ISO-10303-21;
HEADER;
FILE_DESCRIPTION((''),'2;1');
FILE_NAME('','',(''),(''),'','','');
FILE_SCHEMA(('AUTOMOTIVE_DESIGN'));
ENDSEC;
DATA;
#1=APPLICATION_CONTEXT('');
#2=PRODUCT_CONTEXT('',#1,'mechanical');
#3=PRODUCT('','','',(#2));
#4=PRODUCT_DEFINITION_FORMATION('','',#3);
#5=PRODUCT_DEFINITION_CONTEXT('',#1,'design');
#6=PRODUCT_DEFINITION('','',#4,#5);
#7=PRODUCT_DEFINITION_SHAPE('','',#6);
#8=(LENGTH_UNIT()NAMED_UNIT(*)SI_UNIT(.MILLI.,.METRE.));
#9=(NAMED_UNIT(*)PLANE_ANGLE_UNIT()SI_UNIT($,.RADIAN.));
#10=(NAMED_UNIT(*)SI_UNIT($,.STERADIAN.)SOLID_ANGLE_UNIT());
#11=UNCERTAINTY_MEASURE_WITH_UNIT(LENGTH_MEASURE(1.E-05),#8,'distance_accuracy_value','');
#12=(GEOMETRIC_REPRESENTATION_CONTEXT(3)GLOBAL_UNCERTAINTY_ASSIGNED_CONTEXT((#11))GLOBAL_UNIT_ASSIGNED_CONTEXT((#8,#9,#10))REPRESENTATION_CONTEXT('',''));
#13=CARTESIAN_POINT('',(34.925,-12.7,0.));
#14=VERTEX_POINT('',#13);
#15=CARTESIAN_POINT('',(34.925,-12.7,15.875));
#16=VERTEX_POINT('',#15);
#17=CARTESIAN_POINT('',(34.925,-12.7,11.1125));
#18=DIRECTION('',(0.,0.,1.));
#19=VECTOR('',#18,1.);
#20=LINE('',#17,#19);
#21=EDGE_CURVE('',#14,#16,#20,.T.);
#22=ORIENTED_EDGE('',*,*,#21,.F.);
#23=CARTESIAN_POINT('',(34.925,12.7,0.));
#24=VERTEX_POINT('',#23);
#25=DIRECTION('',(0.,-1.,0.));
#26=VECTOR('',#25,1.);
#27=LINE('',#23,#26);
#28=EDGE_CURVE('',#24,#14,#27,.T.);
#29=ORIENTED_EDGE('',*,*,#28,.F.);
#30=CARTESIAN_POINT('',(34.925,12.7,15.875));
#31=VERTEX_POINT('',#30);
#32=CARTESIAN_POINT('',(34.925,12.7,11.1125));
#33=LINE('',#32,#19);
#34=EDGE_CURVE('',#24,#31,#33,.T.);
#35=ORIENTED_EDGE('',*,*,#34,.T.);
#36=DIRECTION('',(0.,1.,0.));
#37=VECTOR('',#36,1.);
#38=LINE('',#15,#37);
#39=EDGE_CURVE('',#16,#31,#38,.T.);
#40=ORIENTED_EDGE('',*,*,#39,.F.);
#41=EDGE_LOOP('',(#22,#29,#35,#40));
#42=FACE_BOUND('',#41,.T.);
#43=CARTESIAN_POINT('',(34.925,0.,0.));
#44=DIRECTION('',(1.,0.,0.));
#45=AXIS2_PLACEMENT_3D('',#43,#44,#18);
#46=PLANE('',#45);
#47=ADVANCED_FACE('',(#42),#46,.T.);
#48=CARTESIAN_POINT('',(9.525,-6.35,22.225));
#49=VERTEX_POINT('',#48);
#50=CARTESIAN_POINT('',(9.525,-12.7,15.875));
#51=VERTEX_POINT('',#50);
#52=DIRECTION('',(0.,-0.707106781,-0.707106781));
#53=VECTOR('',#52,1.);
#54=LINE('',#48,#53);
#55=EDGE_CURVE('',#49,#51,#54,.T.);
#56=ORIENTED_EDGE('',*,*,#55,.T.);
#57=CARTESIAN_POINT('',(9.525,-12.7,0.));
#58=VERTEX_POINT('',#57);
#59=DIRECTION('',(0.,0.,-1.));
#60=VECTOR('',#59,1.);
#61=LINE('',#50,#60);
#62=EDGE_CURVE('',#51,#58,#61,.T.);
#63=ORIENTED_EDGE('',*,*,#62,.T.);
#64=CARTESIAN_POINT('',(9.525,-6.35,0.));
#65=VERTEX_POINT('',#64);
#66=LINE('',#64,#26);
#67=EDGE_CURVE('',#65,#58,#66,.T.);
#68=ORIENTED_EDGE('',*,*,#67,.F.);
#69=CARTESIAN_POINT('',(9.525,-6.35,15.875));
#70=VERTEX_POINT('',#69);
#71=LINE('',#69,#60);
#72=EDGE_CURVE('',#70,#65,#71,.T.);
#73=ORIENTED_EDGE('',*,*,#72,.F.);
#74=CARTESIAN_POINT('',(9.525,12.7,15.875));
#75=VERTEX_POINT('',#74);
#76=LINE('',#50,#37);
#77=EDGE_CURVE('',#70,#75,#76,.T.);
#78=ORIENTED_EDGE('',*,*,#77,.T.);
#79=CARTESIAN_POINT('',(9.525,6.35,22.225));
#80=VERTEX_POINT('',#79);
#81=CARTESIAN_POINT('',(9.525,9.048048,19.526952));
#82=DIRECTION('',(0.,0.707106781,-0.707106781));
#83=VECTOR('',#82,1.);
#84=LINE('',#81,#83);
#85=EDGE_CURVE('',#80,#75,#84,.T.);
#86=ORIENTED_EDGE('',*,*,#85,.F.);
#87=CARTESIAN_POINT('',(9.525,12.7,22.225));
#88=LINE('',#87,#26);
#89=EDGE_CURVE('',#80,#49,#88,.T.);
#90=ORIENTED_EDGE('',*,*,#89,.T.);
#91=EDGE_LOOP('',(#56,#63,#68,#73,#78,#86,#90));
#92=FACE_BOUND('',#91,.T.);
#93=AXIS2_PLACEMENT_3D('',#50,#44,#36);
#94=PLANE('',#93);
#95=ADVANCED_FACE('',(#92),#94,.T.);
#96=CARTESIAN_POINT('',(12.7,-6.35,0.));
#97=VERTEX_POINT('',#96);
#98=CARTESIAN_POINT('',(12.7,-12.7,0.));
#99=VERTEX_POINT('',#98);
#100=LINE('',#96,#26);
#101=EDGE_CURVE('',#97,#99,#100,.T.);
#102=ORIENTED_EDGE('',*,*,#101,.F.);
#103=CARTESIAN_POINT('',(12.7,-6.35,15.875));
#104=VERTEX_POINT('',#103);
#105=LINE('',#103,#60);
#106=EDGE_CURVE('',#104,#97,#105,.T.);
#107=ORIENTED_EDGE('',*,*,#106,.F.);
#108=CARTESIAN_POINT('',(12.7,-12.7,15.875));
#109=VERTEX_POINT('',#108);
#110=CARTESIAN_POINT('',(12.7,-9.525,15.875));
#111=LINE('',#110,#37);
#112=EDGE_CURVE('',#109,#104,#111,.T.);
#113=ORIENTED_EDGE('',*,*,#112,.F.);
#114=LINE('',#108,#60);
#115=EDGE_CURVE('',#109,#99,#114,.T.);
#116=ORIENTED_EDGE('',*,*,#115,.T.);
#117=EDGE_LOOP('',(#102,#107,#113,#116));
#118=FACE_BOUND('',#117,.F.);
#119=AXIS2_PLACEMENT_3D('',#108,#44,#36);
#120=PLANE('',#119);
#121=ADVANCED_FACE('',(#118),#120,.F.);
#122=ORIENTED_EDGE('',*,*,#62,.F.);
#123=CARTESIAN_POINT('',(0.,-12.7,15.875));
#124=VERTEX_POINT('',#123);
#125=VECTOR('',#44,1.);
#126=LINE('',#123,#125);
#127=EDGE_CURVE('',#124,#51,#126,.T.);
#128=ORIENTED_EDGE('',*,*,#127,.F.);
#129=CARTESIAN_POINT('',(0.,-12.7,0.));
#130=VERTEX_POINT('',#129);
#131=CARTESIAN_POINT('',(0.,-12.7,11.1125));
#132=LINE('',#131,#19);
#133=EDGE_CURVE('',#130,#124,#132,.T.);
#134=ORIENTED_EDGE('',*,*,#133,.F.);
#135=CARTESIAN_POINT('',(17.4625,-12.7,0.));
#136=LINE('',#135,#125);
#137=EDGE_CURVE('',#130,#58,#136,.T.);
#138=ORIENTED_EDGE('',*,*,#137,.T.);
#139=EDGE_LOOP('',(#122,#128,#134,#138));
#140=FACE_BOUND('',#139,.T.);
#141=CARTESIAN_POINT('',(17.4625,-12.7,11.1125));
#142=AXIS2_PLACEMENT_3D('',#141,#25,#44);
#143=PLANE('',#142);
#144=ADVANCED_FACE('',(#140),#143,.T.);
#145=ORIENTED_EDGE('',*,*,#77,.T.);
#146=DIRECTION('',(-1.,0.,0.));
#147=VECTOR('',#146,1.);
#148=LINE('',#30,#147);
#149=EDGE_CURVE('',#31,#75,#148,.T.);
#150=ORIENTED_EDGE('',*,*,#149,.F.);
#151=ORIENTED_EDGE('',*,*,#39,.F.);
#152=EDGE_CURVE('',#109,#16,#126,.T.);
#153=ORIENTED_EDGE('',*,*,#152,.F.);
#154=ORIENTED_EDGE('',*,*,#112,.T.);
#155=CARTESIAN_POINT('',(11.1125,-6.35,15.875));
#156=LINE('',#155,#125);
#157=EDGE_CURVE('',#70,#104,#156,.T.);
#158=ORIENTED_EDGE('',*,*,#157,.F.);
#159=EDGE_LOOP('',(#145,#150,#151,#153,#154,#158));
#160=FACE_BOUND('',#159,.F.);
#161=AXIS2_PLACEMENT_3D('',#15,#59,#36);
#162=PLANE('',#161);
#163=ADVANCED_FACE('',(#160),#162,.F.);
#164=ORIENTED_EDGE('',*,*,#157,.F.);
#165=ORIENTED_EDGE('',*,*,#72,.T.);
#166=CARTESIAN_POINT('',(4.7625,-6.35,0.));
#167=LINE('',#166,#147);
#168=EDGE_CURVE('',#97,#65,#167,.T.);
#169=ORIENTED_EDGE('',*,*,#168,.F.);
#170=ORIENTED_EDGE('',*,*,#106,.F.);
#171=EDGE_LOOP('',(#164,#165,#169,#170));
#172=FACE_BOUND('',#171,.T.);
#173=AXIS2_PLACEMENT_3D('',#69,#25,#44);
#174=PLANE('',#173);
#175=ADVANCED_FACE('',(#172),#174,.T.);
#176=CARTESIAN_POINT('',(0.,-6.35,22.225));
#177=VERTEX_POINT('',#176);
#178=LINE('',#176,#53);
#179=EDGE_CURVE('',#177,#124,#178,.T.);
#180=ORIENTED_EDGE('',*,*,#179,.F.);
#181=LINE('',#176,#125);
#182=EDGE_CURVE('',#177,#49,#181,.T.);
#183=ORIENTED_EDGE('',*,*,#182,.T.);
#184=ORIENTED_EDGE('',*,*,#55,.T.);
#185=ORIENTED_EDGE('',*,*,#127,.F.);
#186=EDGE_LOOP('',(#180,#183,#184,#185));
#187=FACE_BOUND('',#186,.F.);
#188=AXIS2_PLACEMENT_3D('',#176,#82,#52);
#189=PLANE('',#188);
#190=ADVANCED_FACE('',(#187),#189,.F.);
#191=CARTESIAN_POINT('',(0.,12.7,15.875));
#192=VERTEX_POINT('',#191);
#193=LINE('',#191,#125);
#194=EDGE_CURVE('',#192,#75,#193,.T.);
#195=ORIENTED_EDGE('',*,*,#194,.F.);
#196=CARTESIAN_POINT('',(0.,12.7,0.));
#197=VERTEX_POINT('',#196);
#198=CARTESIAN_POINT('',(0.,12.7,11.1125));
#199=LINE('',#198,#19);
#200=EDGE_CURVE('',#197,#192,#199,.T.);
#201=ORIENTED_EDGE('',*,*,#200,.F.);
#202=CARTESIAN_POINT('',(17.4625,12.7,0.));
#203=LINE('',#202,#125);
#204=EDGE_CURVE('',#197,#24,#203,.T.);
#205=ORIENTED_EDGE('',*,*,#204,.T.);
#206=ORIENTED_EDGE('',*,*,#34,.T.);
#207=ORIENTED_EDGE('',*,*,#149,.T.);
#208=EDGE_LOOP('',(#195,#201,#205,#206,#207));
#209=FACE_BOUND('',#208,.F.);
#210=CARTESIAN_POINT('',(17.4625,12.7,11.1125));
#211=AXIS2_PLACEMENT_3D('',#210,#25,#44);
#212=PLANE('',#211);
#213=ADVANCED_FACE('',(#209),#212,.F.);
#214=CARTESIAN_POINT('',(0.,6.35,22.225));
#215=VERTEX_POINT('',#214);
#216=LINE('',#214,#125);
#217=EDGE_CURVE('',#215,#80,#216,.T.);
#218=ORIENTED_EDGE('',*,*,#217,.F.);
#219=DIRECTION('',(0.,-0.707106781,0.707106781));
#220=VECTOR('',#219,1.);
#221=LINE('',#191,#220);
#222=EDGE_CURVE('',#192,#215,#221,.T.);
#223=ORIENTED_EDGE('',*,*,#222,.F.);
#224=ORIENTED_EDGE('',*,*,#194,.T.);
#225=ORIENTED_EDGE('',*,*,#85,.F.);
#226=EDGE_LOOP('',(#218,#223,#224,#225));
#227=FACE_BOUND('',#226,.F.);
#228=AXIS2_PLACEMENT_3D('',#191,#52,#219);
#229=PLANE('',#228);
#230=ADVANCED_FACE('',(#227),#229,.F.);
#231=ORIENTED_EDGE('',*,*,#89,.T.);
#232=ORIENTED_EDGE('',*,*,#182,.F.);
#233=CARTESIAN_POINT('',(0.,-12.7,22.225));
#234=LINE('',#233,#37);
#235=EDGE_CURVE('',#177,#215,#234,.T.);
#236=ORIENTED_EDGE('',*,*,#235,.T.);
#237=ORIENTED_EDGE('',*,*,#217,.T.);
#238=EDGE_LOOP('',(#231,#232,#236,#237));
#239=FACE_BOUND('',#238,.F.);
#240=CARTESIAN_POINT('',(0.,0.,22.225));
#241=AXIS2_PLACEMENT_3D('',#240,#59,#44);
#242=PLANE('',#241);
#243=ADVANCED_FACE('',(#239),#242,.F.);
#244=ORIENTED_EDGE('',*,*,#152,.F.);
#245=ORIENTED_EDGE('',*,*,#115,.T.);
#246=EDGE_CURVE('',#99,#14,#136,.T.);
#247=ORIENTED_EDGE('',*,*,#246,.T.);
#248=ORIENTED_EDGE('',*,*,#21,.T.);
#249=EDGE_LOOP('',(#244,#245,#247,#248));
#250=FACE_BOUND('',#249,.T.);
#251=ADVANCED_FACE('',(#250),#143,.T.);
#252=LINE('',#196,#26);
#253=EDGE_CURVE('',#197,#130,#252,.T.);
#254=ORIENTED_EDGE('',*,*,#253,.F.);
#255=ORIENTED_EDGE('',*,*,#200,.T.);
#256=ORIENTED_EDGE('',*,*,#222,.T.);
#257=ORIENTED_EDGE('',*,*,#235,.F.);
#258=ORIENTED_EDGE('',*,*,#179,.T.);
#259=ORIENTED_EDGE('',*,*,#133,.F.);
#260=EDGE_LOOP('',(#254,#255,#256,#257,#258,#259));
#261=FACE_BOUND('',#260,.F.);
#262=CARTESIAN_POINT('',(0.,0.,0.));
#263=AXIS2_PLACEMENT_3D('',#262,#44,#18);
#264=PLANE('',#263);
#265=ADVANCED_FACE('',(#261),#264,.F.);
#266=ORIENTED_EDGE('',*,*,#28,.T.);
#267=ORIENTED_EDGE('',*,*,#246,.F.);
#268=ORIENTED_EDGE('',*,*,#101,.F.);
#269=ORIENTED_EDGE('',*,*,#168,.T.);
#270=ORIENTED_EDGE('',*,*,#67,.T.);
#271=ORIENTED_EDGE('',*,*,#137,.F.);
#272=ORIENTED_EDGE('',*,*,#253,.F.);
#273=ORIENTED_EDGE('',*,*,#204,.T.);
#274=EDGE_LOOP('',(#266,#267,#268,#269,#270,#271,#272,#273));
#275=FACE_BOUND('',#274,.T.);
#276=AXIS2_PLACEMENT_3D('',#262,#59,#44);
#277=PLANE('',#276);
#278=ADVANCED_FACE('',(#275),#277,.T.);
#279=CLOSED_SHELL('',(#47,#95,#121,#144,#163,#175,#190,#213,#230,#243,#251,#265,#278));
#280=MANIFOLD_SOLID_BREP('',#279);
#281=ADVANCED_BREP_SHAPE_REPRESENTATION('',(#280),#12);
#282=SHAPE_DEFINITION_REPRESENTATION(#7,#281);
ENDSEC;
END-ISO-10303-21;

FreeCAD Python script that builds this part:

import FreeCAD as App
import Part
import Sketcher

V = App.Vector
Q = App.Units.Quantity

doc = App.newDocument("Part")
body = doc.addObject("PartDesign::Body", "Body")

# Sketch on XZ plane
sketch1 = body.newObject("Sketcher::SketchObject", "Sketch")
sketch1.AttachmentSupport = (doc.getObject("XZ_Plane"), [""])
sketch1.MapMode = "FlatFace"
sketch1.addGeometry([
    Part.LineSegment(V(0, 22.225, 0), V(0, 0, 0)),
    Part.LineSegment(V(0, 0, 0), V(34.925, 0, 0)),
    Part.LineSegment(V(34.925, 0, 0), V(34.925, 22.225, 0)),
    Part.LineSegment(V(34.925, 22.225, 0), V(0, 22.225, 0)),
], False)
sketch1.addConstraint([
    Sketcher.Constraint("Coincident", 0, 2, 1, 1),
    Sketcher.Constraint("Coincident", 1, 2, 2, 1),
    Sketcher.Constraint("Coincident", 2, 2, 3, 1),
    Sketcher.Constraint("Coincident", 3, 2, 0, 1),
    Sketcher.Constraint("Vertical", 0),
    Sketcher.Constraint("Horizontal", 1),
    Sketcher.Constraint("Vertical", 2),
    Sketcher.Constraint("Horizontal", 3),
    Sketcher.Constraint("Coincident", 0, 2, -1, 1),
    Sketcher.Constraint("DistanceX", 1, 1, 1, 2, Q("1.375 in")),
    Sketcher.Constraint("DistanceY", 0, 2, 0, 1, Q("0.875 in")),
])
pad1 = body.newObject("PartDesign::Pad", "Pad")
pad1.Profile = sketch1
pad1.Length = Q("1 in")
pad1.Midplane = True

# Sketch on YZ plane
sketch2 = body.newObject("Sketcher::SketchObject", "Sketch001")
sketch2.AttachmentSupport = (doc.getObject("YZ_Plane"), [""])
sketch2.MapMode = "FlatFace"
sketch2.addGeometry([
    Part.LineSegment(V(-12.7, 15.875, 0), V(-12.7, 22.225, 0)),
    Part.LineSegment(V(-12.7, 22.225, 0), V(-6.35, 22.225, 0)),
    Part.LineSegment(V(-6.35, 22.225, 0), V(-12.7, 15.875, 0)),
], False)
sketch2.addConstraint([
    Sketcher.Constraint("Coincident", 0, 2, 1, 1),
    Sketcher.Constraint("Coincident", 1, 2, 2, 1),
    Sketcher.Constraint("Coincident", 2, 2, 0, 1),
    Sketcher.Constraint("Vertical", 0),
    Sketcher.Constraint("Horizontal", 1),
    Sketcher.Constraint("Equal", 1, 0),
    Sketcher.Constraint("DistanceX", 1, 1, 1, 2, Q("0.25 in")),
    Sketcher.Constraint("DistanceX", 0, 2, -1, 1, Q("0.5 in")),
    Sketcher.Constraint("DistanceY", -1, 1, 0, 2, Q("0.875 in")),
])
pocket1 = body.newObject("PartDesign::Pocket", "Pocket")
pocket1.Profile = sketch2
pocket1.Type = "ThroughAll"
pocket1.Reversed = True

# Sketch on YZ plane
sketch3 = body.newObject("Sketcher::SketchObject", "Sketch002")
sketch3.AttachmentSupport = (doc.getObject("YZ_Plane"), [""])
sketch3.MapMode = "FlatFace"
sketch3.AttachmentOffset = App.Placement(V(0, 0, 1.375 * 25.4), App.Rotation())
sketch3.addGeometry([
    Part.LineSegment(V(-6.35, 22.225, 0), V(-12.7, 15.875, 0)),
    Part.LineSegment(V(-12.7, 15.875, 0), V(12.7, 15.875, 0)),
    Part.LineSegment(V(12.7, 15.875, 0), V(12.7, 22.225, 0)),
    Part.LineSegment(V(12.7, 22.225, 0), V(-6.35, 22.225, 0)),
], False)
sketch3.addConstraint([
    Sketcher.Constraint("Coincident", 0, 2, 1, 1),
    Sketcher.Constraint("Coincident", 1, 2, 2, 1),
    Sketcher.Constraint("Coincident", 2, 2, 3, 1),
    Sketcher.Constraint("Coincident", 3, 2, 0, 1),
    Sketcher.Constraint("Horizontal", 1),
    Sketcher.Constraint("Vertical", 2),
    Sketcher.Constraint("Horizontal", 3),
    Sketcher.Constraint("DistanceX", 1, 1, 1, 2, Q("1 in")),
    Sketcher.Constraint("Angle", 0, Q("-135 deg")),
    Sketcher.Constraint("DistanceX", 3, 2, 3, 1, Q("0.75 in")),
    Sketcher.Constraint("DistanceX", 0, 2, -1, 1, Q("0.5 in")),
    Sketcher.Constraint("DistanceY", -1, 1, 0, 2, Q("0.625 in")),
])
pocket2 = body.newObject("PartDesign::Pocket", "Pocket001")
pocket2.Profile = sketch3
pocket2.Length = Q("1 in")

# Sketch on YZ plane
sketch4 = body.newObject("Sketcher::SketchObject", "Sketch003")
sketch4.AttachmentSupport = (doc.getObject("YZ_Plane"), [""])
sketch4.MapMode = "FlatFace"
sketch4.addGeometry([
    Part.LineSegment(V(6.35, 22.225, 0), V(12.7, 22.225, 0)),
    Part.LineSegment(V(12.7, 22.225, 0), V(12.7, 15.875, 0)),
    Part.LineSegment(V(12.7, 15.875, 0), V(6.35, 22.225, 0)),
], False)
sketch4.addConstraint([
    Sketcher.Constraint("Coincident", 0, 2, 1, 1),
    Sketcher.Constraint("Coincident", 1, 2, 2, 1),
    Sketcher.Constraint("Coincident", 2, 2, 0, 1),
    Sketcher.Constraint("Horizontal", 0),
    Sketcher.Constraint("Vertical", 1),
    Sketcher.Constraint("Equal", 0, 1),
    Sketcher.Constraint("DistanceX", 0, 1, 0, 2, Q("0.25 in")),
    Sketcher.Constraint("DistanceX", -1, 1, 0, 2, Q("0.5 in")),
    Sketcher.Constraint("DistanceY", -1, 1, 0, 2, Q("0.875 in")),
])
pocket3 = body.newObject("PartDesign::Pocket", "Pocket002")
pocket3.Profile = sketch4
pocket3.Type = "ThroughAll"
pocket3.Reversed = True

# Sketch on XY plane
sketch5 = body.newObject("Sketcher::SketchObject", "Sketch004")
sketch5.AttachmentSupport = (doc.getObject("XY_Plane"), [""])
sketch5.MapMode = "FlatFace"
sketch5.AttachmentOffset = App.Placement(V(0, 0, 0.625 * 25.4), App.Rotation())
sketch5.addGeometry([
    Part.LineSegment(V(9.525, -6.35, 0), V(9.525, -12.7, 0)),
    Part.LineSegment(V(9.525, -12.7, 0), V(12.7, -12.7, 0)),
    Part.LineSegment(V(12.7, -12.7, 0), V(12.7, -6.35, 0)),
    Part.LineSegment(V(12.7, -6.35, 0), V(9.525, -6.35, 0)),
], False)
sketch5.addConstraint([
    Sketcher.Constraint("Coincident", 0, 2, 1, 1),
    Sketcher.Constraint("Coincident", 1, 2, 2, 1),
    Sketcher.Constraint("Coincident", 2, 2, 3, 1),
    Sketcher.Constraint("Coincident", 3, 2, 0, 1),
    Sketcher.Constraint("Vertical", 0),
    Sketcher.Constraint("Horizontal", 1),
    Sketcher.Constraint("Vertical", 2),
    Sketcher.Constraint("Horizontal", 3),
    Sketcher.Constraint("DistanceY", 0, 2, 0, 1, Q("0.25 in")),
    Sketcher.Constraint("DistanceY", 0, 2, -1, 1, Q("0.5 in")),
    Sketcher.Constraint("DistanceX", -1, 1, 1, 2, Q("0.5 in")),
    Sketcher.Constraint("DistanceX", 1, 1, 1, 2, Q("0.125 in")),
])
pocket4 = body.newObject("PartDesign::Pocket", "Pocket003")
pocket4.Profile = sketch5
pocket4.Type = "ThroughAll"

doc.recompute()
